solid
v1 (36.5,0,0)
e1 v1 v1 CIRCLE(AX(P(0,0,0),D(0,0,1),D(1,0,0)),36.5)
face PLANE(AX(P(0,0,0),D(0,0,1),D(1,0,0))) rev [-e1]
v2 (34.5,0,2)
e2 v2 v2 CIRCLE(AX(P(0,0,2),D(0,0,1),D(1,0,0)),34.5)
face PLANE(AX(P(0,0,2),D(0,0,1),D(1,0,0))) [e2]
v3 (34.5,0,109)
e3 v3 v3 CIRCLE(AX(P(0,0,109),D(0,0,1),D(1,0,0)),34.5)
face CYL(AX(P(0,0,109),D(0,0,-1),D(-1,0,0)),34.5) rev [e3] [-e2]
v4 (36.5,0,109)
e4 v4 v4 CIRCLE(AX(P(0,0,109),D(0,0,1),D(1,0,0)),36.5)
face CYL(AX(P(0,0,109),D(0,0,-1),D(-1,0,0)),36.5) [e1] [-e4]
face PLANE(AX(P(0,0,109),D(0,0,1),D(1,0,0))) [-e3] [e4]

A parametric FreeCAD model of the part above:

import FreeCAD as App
import Part
import Sketcher
from FreeCAD import Vector


def faces_at(feature, points):
    """Names of the faces that lie closest to the given points."""
    faces = feature.Shape.Faces
    near = lambda p: min(range(len(faces)), key=lambda i: faces[i].distToShape(Part.Vertex(*p))[0])
    return sorted({f"Face{near(p) + 1}" for p in points})

doc = App.newDocument("Part")
body = doc.addObject("PartDesign::Body", "Body")

sketch1 = doc.addObject("Sketcher::SketchObject", "Sketch")
body.addObject(sketch1)
sketch1.AttachmentSupport = (doc.XY_Plane, [""])
sketch1.MapMode = "FlatFace"
sketch1.addGeometry(Part.Circle(Vector(0, 0, 0), Vector(0, 0, 1), 36), False)
sketch1.addConstraint([
    Sketcher.Constraint("Coincident", 0, 3, -1, 1),
    Sketcher.Constraint("Diameter", 0, 73.0),
])
pad1 = doc.addObject("PartDesign::Pad", "Pad")
body.addObject(pad1)
pad1.Profile = sketch1
pad1.Length = 109
doc.recompute()

thickness = doc.addObject("PartDesign::Thickness", "Thickness")
body.addObject(thickness)
thickness.Base = (pad1, faces_at(pad1, [(0, 0, 109)]))
thickness.Value = 2
thickness.Reversed = True
thickness.Join = "Intersection"

doc.recompute()
